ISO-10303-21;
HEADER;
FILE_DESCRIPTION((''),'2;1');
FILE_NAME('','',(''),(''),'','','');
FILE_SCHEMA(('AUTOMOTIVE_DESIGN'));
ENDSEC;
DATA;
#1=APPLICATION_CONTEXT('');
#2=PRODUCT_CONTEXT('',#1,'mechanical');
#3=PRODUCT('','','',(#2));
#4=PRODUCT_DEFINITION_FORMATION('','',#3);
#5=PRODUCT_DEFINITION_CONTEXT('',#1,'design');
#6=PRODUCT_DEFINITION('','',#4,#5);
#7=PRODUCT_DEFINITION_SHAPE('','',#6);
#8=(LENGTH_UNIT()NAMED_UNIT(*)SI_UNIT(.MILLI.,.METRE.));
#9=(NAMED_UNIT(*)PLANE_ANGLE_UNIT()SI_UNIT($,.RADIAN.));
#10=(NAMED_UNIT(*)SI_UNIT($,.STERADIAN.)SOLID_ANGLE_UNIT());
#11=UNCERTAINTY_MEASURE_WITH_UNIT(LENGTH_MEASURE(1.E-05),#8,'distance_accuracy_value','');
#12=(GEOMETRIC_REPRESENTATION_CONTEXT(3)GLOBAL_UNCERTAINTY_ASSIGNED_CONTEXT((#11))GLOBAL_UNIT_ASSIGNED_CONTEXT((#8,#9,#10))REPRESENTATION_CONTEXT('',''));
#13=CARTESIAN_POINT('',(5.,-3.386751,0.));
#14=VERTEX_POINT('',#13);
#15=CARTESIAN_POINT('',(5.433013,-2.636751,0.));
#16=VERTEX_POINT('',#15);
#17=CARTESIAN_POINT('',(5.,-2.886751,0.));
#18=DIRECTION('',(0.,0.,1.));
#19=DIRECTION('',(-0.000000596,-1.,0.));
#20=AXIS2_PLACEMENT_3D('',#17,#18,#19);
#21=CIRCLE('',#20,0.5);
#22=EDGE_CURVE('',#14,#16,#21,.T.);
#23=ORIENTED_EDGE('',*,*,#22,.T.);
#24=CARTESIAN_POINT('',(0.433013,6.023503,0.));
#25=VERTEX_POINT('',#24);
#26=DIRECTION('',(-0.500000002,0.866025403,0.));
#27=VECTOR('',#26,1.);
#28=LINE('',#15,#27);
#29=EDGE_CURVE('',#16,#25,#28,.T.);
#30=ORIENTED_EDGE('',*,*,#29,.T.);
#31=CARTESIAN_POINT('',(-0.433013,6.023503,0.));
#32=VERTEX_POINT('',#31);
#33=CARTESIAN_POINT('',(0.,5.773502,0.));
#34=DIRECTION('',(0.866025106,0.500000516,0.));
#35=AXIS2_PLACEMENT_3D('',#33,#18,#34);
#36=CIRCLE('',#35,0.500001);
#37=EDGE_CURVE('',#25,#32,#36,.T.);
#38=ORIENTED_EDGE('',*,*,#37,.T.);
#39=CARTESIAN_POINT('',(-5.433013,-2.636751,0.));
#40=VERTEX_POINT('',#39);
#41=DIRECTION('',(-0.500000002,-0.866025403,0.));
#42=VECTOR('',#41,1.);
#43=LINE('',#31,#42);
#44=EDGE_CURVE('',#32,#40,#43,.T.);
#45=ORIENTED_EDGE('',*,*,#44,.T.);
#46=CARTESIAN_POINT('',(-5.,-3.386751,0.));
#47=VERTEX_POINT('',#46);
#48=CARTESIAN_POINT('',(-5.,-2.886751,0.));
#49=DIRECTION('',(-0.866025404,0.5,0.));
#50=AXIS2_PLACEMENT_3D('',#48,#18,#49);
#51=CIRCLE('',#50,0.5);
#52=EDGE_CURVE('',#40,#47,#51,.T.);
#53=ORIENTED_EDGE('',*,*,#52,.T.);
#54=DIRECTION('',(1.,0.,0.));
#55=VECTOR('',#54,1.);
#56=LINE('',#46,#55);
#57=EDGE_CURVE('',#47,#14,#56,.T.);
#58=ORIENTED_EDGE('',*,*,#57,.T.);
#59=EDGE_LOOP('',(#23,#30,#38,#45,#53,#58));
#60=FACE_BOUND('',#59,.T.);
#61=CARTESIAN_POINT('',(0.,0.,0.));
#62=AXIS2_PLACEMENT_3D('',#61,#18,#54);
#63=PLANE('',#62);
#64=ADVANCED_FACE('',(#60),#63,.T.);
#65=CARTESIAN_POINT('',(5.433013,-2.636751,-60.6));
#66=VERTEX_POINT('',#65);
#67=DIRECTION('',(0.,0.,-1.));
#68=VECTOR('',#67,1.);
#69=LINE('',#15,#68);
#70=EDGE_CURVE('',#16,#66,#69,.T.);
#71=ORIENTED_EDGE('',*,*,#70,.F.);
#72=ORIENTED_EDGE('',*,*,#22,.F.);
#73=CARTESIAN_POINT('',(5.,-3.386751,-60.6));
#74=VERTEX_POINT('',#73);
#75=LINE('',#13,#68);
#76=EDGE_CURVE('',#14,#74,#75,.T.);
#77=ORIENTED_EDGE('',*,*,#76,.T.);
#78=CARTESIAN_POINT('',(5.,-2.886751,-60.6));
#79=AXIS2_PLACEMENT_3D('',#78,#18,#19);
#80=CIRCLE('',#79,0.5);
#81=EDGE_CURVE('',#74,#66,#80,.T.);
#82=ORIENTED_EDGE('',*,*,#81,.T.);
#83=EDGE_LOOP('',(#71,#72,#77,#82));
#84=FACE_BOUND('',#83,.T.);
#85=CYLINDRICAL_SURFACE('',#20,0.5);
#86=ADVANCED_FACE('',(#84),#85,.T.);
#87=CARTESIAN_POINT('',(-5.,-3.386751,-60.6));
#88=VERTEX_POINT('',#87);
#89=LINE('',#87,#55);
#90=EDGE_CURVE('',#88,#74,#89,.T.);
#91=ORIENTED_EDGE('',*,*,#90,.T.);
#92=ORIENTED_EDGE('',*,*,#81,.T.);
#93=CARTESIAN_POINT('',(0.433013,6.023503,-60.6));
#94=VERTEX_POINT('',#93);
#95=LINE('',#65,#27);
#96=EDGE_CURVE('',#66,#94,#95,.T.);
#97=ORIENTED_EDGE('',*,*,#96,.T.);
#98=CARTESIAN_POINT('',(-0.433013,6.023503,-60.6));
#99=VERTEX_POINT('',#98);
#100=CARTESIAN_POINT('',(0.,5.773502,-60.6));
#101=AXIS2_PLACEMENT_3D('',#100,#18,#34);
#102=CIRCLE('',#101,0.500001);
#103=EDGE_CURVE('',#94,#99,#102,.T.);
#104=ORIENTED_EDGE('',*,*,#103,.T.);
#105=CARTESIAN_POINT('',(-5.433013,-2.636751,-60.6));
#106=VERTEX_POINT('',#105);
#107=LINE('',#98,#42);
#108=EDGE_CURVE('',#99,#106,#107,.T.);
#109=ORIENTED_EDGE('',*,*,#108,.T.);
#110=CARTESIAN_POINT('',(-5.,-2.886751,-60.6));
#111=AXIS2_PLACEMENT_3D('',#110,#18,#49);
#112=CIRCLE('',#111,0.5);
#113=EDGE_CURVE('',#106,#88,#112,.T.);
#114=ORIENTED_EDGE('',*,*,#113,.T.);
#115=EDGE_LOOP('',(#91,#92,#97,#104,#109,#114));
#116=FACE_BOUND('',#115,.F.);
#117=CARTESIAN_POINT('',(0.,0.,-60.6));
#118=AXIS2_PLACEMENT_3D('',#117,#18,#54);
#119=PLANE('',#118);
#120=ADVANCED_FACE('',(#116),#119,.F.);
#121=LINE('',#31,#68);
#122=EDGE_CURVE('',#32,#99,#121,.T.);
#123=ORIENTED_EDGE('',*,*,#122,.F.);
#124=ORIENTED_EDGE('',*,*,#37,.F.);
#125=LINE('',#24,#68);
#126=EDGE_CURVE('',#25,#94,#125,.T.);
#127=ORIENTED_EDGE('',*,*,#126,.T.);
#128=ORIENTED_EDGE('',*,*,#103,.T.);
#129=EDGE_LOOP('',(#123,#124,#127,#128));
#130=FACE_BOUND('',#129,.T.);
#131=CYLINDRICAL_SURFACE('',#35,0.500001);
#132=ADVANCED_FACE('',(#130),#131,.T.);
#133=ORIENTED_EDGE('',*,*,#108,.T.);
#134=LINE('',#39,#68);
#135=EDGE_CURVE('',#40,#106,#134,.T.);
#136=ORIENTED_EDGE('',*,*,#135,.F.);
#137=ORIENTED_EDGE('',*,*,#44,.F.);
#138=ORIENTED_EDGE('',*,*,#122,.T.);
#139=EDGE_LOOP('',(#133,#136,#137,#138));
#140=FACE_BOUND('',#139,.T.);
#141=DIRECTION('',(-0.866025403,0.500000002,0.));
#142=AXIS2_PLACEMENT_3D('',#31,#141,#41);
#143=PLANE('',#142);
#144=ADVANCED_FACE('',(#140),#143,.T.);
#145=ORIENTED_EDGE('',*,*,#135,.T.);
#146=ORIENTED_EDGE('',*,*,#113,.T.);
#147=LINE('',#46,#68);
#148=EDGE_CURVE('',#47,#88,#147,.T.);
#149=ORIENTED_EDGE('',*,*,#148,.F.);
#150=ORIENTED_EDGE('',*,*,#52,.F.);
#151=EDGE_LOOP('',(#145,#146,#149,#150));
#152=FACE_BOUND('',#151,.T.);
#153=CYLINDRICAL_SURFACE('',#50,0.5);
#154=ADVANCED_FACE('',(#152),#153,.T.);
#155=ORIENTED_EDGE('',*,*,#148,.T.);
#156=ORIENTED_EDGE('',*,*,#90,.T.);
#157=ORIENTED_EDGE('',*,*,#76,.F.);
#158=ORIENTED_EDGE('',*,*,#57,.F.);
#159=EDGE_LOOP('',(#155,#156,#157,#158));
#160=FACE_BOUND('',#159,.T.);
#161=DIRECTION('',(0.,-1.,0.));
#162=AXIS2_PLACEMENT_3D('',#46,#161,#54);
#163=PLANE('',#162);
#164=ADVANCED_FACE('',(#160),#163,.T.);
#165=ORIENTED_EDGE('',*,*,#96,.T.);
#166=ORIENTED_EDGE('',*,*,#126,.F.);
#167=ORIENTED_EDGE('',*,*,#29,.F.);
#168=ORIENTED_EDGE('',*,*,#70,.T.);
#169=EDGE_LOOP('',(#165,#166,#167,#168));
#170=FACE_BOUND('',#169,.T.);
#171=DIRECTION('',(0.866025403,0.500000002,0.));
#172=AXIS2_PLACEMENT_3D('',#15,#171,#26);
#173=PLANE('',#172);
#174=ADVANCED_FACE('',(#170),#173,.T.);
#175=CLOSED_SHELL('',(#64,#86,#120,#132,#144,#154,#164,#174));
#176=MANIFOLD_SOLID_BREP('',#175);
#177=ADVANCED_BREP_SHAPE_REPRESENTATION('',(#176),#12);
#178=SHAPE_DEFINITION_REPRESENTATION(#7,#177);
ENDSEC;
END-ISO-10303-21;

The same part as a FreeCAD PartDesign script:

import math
import FreeCAD as App
import Part
import Sketcher
from FreeCAD import Vector
Q = App.Units.Quantity

doc = App.newDocument("Part")
body = doc.addObject("PartDesign::Body", "Body")

# Sketch on XY plane
sketch1 = body.newObject("Sketcher::SketchObject", "Sketch")
sketch1.AttachmentSupport = (doc.getObject("XY_Plane"), [""])
sketch1.MapMode = "FlatFace"
sketch1.addGeometry(Part.LineSegment(Vector(5.4, -2.6, 0), Vector(0.4, 6, 0)), False)
sketch1.addGeometry(Part.ArcOfCircle(Part.Circle(Vector(0, 5.8, 0), Vector(0, 0, 1), 0.5), math.radians(30), math.radians(150)), False)
sketch1.addGeometry(Part.LineSegment(Vector(-0.4, 6, 0), Vector(-5.4, -2.6, 0)), False)
sketch1.addGeometry(Part.ArcOfCircle(Part.Circle(Vector(-5, -2.9, 0), Vector(0, 0, 1), 0.5), math.radians(150), math.radians(270)), False)
sketch1.addGeometry(Part.LineSegment(Vector(-5, -3.4, 0), Vector(5, -3.4, 0)), False)
sketch1.addGeometry(Part.ArcOfCircle(Part.Circle(Vector(5, -2.9, 0), Vector(0, 0, 1), 0.5), math.radians(-90), math.radians(30)), False)
sketch1.addConstraint(Sketcher.Constraint("Tangent", 0, 2, 1, 1))
sketch1.addConstraint(Sketcher.Constraint("Tangent", 1, 2, 2, 1))
sketch1.addConstraint(Sketcher.Constraint("Tangent", 2, 2, 3, 1))
sketch1.addConstraint(Sketcher.Constraint("Tangent", 3, 2, 4, 1))
sketch1.addConstraint(Sketcher.Constraint("Tangent", 4, 2, 5, 1))
sketch1.addConstraint(Sketcher.Constraint("Tangent", 5, 2, 0, 1))
sketch1.addConstraint(Sketcher.Constraint("Horizontal", 4))
sketch1.addConstraint(Sketcher.Constraint("Equal", 1, 3))
sketch1.addConstraint(Sketcher.Constraint("Equal", 3, 5))
sketch1.addConstraint(Sketcher.Constraint("Symmetric", 0, 2, 1, 2, -2))
sketch1.addConstraint(Sketcher.Constraint("Radius", 1, 0.500001))
sketch1.addConstraint(Sketcher.Constraint("DistanceX", 4, 1, 4, 2, 10.0))
sketch1.addConstraint(Sketcher.Constraint("Angle", 0, Q("120 deg")))
sketch1.addConstraint(Sketcher.Constraint("DistanceY", 3, 3, -1, 1, 2.886751))
pad1 = body.newObject("PartDesign::Pad", "Pad")
pad1.Profile = sketch1
pad1.Length = 60.6
pad1.Reversed = True

doc.recompute()
